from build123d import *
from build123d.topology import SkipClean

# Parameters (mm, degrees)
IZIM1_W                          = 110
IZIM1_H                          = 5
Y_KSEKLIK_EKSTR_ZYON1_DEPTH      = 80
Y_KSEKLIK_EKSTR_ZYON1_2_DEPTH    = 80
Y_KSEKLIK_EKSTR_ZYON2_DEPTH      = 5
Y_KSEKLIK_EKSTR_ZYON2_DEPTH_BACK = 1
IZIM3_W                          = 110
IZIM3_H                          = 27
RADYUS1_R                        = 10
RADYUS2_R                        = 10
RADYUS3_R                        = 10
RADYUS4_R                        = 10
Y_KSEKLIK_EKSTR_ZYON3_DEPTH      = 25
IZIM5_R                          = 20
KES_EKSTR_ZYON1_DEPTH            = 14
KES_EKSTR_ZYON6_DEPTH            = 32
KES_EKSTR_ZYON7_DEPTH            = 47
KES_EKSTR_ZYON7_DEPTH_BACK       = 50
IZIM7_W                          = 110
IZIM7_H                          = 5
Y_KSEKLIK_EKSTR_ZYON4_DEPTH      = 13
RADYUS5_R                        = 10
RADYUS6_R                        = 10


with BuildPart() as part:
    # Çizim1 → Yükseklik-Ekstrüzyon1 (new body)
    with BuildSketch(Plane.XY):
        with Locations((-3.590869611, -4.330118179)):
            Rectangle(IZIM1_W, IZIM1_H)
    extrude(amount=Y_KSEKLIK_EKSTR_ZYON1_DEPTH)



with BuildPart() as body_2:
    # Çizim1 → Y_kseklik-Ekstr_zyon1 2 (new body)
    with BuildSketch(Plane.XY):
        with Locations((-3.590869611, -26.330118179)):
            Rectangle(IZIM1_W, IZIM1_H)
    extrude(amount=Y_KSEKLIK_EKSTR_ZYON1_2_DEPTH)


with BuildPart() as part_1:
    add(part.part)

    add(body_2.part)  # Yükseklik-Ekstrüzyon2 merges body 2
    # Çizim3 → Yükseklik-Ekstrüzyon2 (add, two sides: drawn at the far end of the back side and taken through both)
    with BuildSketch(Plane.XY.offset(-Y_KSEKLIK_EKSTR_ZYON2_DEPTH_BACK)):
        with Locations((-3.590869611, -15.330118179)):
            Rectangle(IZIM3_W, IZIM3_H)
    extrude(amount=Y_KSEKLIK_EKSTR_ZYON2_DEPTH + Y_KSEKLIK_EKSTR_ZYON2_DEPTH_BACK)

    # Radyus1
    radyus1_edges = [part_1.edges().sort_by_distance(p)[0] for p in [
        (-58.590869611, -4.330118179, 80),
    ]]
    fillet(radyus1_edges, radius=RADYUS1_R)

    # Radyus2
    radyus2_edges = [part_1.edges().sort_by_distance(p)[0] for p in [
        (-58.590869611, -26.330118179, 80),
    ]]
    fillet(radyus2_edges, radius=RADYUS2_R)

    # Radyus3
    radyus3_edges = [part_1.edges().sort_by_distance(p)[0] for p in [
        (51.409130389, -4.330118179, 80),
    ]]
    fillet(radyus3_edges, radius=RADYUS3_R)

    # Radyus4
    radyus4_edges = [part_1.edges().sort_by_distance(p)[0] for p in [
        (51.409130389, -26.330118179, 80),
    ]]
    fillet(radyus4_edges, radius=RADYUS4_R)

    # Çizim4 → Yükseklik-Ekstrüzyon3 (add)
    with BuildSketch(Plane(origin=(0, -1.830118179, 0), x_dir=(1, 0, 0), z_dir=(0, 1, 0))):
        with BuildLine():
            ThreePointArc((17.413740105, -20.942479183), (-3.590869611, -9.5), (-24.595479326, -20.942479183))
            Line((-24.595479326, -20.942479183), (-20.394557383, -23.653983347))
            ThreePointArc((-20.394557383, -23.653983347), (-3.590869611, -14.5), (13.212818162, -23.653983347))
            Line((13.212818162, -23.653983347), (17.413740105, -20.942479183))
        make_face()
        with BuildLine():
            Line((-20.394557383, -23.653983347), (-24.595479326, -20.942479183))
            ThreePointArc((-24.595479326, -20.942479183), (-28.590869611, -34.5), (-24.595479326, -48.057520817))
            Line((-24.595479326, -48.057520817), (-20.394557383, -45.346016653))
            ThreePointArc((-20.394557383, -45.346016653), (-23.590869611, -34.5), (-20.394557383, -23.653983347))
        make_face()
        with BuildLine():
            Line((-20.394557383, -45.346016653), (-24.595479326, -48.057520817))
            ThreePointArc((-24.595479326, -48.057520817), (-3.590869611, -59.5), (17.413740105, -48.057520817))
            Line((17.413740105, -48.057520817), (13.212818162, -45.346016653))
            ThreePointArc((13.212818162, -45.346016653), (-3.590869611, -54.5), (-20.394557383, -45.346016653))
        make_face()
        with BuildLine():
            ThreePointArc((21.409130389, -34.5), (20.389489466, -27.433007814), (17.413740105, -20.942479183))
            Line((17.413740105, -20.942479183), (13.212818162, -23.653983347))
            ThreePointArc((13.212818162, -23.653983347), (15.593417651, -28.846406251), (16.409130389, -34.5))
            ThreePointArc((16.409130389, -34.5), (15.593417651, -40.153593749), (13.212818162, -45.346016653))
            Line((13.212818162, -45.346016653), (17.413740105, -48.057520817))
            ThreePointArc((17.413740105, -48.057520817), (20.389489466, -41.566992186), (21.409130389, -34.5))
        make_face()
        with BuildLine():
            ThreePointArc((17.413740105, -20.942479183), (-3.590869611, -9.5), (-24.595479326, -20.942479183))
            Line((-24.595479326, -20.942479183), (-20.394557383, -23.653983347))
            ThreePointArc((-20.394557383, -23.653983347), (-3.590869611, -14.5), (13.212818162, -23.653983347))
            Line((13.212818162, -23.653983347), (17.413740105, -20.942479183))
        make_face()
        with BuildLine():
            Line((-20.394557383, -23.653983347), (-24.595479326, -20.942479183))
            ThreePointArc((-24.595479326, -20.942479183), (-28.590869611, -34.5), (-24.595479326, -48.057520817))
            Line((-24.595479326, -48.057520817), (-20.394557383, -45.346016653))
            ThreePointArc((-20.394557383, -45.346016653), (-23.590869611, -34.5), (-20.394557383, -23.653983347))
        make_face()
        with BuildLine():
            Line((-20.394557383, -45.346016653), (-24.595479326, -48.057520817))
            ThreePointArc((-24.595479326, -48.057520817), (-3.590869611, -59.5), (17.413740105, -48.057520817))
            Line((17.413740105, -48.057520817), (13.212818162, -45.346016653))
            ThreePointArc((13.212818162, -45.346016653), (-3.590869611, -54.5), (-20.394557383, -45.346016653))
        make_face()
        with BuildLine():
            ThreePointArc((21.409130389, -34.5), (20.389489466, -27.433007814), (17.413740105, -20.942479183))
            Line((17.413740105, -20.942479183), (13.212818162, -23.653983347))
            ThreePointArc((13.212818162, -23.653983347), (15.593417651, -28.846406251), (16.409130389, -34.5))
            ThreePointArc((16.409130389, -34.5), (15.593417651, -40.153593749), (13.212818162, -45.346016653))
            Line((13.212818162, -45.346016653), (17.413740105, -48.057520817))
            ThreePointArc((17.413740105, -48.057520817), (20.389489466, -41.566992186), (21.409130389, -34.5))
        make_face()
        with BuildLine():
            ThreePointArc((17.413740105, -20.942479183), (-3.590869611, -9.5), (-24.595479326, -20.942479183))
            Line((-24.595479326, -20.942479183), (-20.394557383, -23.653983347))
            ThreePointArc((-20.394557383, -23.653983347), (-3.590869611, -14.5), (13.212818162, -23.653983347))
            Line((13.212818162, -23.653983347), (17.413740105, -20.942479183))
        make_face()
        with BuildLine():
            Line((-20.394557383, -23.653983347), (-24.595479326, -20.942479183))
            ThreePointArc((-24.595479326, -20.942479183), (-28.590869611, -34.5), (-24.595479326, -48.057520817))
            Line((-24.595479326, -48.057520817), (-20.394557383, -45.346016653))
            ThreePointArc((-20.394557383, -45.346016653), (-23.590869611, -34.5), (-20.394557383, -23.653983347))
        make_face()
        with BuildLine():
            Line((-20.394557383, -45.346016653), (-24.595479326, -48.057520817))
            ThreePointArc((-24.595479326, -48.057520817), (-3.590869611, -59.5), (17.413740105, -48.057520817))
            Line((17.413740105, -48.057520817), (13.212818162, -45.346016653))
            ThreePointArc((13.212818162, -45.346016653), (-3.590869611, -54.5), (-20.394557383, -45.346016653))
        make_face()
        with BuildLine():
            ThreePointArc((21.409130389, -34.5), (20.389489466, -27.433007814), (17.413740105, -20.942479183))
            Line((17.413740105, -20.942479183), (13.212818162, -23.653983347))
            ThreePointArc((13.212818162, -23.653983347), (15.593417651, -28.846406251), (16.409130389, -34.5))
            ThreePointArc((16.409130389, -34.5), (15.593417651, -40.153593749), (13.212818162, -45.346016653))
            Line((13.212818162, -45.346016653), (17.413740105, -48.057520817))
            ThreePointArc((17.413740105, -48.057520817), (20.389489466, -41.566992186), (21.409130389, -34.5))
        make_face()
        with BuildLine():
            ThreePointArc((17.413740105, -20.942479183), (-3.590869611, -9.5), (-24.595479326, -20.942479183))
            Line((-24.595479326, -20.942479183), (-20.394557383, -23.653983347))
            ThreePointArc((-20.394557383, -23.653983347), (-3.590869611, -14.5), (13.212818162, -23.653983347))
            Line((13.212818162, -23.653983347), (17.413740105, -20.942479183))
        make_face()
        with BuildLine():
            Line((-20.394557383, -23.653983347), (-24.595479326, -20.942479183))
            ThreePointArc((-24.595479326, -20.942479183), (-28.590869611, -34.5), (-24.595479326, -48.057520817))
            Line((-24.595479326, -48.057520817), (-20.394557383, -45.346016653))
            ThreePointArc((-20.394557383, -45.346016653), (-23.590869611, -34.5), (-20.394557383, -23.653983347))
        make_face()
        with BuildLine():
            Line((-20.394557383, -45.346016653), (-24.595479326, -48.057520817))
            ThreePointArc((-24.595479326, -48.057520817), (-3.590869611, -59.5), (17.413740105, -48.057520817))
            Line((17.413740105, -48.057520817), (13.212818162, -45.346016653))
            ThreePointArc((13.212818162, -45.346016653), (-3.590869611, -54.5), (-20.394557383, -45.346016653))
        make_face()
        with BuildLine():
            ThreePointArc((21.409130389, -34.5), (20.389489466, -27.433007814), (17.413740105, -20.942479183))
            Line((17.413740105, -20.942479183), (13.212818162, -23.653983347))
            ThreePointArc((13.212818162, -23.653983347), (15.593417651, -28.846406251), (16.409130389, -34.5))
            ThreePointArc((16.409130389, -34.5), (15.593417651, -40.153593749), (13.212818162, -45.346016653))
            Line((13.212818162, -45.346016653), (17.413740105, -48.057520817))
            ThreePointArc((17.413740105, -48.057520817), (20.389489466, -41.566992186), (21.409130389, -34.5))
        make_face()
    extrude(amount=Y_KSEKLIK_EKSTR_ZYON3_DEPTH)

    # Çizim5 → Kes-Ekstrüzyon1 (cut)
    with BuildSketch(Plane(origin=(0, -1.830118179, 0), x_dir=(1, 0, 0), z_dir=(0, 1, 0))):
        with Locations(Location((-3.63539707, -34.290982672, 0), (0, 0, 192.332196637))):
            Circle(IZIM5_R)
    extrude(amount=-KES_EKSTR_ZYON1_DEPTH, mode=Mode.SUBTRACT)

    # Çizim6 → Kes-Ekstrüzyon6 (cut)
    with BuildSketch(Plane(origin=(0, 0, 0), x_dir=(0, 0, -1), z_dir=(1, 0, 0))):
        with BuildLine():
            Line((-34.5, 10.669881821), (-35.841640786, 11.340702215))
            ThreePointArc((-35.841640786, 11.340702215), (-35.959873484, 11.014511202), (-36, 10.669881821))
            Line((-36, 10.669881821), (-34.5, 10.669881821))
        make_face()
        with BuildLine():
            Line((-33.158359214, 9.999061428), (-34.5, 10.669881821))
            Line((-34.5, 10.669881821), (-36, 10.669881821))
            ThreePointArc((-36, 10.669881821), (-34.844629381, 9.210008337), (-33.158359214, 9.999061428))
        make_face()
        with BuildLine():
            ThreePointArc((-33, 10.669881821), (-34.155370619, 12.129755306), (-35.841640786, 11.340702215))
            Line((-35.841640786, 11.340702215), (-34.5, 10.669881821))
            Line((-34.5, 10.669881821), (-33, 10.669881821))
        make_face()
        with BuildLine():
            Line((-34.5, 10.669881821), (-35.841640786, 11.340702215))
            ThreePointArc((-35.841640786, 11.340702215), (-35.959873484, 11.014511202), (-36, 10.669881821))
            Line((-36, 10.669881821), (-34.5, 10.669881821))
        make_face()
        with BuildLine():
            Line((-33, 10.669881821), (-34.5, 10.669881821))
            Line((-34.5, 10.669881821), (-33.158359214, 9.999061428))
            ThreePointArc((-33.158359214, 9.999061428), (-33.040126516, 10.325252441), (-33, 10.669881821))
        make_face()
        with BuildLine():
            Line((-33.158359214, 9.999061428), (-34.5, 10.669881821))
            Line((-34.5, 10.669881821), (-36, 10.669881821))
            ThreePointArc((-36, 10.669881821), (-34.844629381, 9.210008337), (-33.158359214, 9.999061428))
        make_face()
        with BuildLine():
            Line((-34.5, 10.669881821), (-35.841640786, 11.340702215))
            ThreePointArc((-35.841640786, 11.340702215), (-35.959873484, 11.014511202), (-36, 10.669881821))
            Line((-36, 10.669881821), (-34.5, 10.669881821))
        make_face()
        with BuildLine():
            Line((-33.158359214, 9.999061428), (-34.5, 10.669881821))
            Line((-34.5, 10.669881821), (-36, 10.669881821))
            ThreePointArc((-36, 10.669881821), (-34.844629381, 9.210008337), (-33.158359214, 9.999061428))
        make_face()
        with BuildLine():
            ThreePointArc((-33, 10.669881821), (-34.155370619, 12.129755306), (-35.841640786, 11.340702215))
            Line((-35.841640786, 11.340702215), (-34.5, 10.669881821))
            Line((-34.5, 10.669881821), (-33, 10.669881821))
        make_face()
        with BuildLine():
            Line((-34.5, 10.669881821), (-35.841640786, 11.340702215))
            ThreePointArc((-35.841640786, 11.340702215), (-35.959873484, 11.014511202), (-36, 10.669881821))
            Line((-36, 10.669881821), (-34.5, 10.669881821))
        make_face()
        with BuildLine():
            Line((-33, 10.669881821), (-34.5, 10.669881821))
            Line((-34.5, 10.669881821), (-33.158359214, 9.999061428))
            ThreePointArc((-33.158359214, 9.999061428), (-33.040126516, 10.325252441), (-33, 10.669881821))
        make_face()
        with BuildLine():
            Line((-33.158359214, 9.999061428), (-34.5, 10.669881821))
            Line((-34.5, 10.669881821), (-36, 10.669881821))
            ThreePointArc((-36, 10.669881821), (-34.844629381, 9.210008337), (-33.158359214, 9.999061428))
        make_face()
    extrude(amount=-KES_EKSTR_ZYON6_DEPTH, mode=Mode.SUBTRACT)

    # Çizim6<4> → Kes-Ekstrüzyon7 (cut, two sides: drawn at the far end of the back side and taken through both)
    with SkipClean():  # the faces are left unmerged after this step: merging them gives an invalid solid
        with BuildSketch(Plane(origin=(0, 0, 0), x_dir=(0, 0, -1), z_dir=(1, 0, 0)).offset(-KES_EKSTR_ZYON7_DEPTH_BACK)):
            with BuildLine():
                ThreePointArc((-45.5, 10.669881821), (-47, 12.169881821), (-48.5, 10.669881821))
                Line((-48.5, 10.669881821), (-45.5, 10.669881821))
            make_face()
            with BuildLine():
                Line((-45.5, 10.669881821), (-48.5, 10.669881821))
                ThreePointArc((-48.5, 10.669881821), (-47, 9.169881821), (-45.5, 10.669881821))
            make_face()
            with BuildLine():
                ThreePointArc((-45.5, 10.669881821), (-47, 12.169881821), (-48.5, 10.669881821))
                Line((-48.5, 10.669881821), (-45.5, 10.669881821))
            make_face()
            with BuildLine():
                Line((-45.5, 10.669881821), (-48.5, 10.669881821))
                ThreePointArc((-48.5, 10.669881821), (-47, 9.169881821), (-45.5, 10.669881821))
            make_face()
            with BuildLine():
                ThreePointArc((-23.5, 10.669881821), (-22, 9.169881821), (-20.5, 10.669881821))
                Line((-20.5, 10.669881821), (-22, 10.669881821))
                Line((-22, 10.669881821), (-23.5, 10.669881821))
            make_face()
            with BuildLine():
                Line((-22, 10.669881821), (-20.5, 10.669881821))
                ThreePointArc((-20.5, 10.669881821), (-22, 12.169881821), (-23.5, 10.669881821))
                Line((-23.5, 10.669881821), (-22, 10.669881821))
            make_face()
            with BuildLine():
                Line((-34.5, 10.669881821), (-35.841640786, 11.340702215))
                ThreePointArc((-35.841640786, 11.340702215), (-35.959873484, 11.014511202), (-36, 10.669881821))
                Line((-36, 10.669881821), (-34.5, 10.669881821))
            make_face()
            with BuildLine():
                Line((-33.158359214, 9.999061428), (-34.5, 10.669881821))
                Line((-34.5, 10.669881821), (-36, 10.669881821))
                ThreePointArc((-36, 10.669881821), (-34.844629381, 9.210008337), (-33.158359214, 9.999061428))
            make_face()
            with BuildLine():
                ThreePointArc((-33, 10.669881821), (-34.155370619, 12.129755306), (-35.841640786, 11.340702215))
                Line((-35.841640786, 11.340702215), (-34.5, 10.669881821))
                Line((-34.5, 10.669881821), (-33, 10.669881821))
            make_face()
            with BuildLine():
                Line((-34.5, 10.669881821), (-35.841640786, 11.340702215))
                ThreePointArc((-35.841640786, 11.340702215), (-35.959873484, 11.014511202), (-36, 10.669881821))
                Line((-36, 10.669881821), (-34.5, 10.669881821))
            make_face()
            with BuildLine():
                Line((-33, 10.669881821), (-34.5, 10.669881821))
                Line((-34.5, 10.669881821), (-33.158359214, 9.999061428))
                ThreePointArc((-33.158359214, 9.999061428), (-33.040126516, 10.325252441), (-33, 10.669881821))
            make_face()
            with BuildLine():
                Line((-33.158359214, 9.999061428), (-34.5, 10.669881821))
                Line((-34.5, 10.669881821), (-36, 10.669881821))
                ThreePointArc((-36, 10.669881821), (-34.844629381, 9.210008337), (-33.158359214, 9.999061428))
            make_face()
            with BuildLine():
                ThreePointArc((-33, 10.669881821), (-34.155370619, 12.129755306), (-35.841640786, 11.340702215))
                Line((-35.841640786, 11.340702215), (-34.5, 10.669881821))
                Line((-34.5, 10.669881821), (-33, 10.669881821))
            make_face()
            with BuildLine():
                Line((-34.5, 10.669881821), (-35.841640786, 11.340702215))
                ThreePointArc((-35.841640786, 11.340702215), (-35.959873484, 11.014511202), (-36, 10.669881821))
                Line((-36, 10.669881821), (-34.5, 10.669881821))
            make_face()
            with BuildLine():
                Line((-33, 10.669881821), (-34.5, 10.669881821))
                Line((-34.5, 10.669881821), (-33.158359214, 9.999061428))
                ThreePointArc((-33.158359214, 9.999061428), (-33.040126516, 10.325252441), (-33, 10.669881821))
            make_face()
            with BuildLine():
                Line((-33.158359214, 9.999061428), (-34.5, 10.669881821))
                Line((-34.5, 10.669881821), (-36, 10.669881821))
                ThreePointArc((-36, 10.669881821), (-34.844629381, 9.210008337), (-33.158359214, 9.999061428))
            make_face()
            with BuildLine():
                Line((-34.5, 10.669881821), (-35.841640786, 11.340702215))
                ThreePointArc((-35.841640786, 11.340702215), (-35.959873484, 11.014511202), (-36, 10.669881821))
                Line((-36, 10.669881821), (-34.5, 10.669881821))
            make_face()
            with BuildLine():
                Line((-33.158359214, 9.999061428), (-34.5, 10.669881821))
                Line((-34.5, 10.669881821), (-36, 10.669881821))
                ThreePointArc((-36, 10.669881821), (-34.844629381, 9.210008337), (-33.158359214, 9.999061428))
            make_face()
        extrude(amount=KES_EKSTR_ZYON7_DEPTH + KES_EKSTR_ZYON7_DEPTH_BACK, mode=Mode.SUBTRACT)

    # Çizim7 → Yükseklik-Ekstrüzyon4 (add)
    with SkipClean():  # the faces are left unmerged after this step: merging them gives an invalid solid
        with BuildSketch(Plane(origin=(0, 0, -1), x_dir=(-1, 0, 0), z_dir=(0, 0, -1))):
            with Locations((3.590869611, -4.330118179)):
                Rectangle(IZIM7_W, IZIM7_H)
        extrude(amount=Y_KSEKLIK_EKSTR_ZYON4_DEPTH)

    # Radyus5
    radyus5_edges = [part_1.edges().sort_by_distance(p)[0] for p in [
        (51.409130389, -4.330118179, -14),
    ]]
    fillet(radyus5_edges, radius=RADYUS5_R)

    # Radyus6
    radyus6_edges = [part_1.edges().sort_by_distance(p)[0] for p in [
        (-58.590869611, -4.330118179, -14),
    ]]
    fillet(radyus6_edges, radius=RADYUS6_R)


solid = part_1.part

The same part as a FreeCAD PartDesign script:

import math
import FreeCAD as App
import Part
import Sketcher
from FreeCAD import Vector


def edges_at(feature, points):
    """Names of the edges that pass closest to the given points."""
    edges = feature.Shape.Edges
    near = lambda p: min(range(len(edges)), key=lambda i: edges[i].distToShape(Part.Vertex(*p))[0])
    return sorted({f"Edge{near(p) + 1}" for p in points})

doc = App.newDocument("Part")
body = doc.addObject("PartDesign::Body", "Body")

sketch1 = doc.addObject("Sketcher::SketchObject", "Sketch")
body.addObject(sketch1)
sketch1.AttachmentSupport = (doc.XY_Plane, [""])
sketch1.MapMode = "FlatFace"
sketch1.addGeometry([
    Part.LineSegment(Vector(-59, -2, 0), Vector(-59, -7, 0)),
    Part.LineSegment(Vector(-59, -7, 0), Vector(51, -7, 0)),
    Part.LineSegment(Vector(51, -7, 0), Vector(51, -2, 0)),
    Part.LineSegment(Vector(51, -2, 0), Vector(-59, -2, 0)),
], False)
sketch1.addConstraint([
    Sketcher.Constraint("Coincident", 0, 2, 1, 1),
    Sketcher.Constraint("Coincident", 1, 2, 2, 1),
    Sketcher.Constraint("Coincident", 2, 2, 3, 1),
    Sketcher.Constraint("Coincident", 3, 2, 0, 1),
    Sketcher.Constraint("Vertical", 0),
    Sketcher.Constraint("Horizontal", 1),
    Sketcher.Constraint("Vertical", 2),
    Sketcher.Constraint("Horizontal", 3),
    Sketcher.Constraint("DistanceX", 1, 1, 1, 2, 110.0),
    Sketcher.Constraint("DistanceY", 0, 2, 0, 1, 5.0),
    Sketcher.Constraint("DistanceX", 0, 2, -1, 1, 58.59087),
    Sketcher.Constraint("DistanceY", 0, 2, -1, 1, 6.830118),
])
pad1 = doc.addObject("PartDesign::Pad", "Pad")
body.addObject(pad1)
pad1.Profile = sketch1
pad1.Length = 80
body2 = doc.addObject("PartDesign::Body", "Body001")

sketch2 = doc.addObject("Sketcher::SketchObject", "Sketch001")
body2.addObject(sketch2)
sketch2.AttachmentSupport = (doc.getObject("XY_Plane001"), [""])
sketch2.MapMode = "FlatFace"
sketch2.addGeometry([
    Part.LineSegment(Vector(-59, -24, 0), Vector(-59, -29, 0)),
    Part.LineSegment(Vector(-59, -29, 0), Vector(51, -29, 0)),
    Part.LineSegment(Vector(51, -29, 0), Vector(51, -24, 0)),
    Part.LineSegment(Vector(51, -24, 0), Vector(-59, -24, 0)),
], False)
sketch2.addConstraint([
    Sketcher.Constraint("Coincident", 0, 2, 1, 1),
    Sketcher.Constraint("Coincident", 1, 2, 2, 1),
    Sketcher.Constraint("Coincident", 2, 2, 3, 1),
    Sketcher.Constraint("Coincident", 3, 2, 0, 1),
    Sketcher.Constraint("Vertical", 0),
    Sketcher.Constraint("Horizontal", 1),
    Sketcher.Constraint("Vertical", 2),
    Sketcher.Constraint("Horizontal", 3),
    Sketcher.Constraint("DistanceX", 1, 1, 1, 2, 110.0),
    Sketcher.Constraint("DistanceY", 0, 2, 0, 1, 5.0),
    Sketcher.Constraint("DistanceX", 0, 2, -1, 1, 58.59087),
    Sketcher.Constraint("DistanceY", 0, 2, -1, 1, 28.830118),
])
pad2 = doc.addObject("PartDesign::Pad", "Pad001")
body2.addObject(pad2)
pad2.Profile = sketch2
pad2.Length = 80
body.AllowCompound = True
doc.recompute()

boolean = doc.addObject("PartDesign::Boolean", "Boolean")
body.addObject(boolean)
boolean.Type = "Fuse"
boolean.addObjects([body2])

sketch3 = doc.addObject("Sketcher::SketchObject", "Sketch002")
body.addObject(sketch3)
sketch3.AttachmentSupport = (doc.XY_Plane, [""])
sketch3.MapMode = "FlatFace"
sketch3.addGeometry([
    Part.LineSegment(Vector(-59, -2, 0), Vector(-59, -29, 0)),
    Part.LineSegment(Vector(-59, -29, 0), Vector(51, -29, 0)),
    Part.LineSegment(Vector(51, -29, 0), Vector(51, -2, 0)),
    Part.LineSegment(Vector(51, -2, 0), Vector(-59, -2, 0)),
], False)
sketch3.addConstraint([
    Sketcher.Constraint("Coincident", 0, 2, 1, 1),
    Sketcher.Constraint("Coincident", 1, 2, 2, 1),
    Sketcher.Constraint("Coincident", 2, 2, 3, 1),
    Sketcher.Constraint("Coincident", 3, 2, 0, 1),
    Sketcher.Constraint("Vertical", 0),
    Sketcher.Constraint("Horizontal", 1),
    Sketcher.Constraint("Vertical", 2),
    Sketcher.Constraint("Horizontal", 3),
    Sketcher.Constraint("DistanceX", 1, 1, 1, 2, 110.0),
    Sketcher.Constraint("DistanceY", 0, 2, 0, 1, 27.0),
    Sketcher.Constraint("DistanceX", 0, 2, -1, 1, 58.59087),
    Sketcher.Constraint("DistanceY", 0, 2, -1, 1, 28.830118),
])
pad3 = doc.addObject("PartDesign::Pad", "Pad002")
body.addObject(pad3)
pad3.Profile = sketch3
pad3.Type = "TwoLengths"
pad3.Length = 5
pad3.Length2 = 1
doc.recompute()

fillet = doc.addObject("PartDesign::Fillet", "Fillet")
body.addObject(fillet)
fillet.Base = (pad3, edges_at(pad3, [(-58.591, -4.33, 80)]))
fillet.Radius = 10
doc.recompute()

fillet2 = doc.addObject("PartDesign::Fillet", "Fillet001")
body.addObject(fillet2)
fillet2.Base = (fillet, edges_at(fillet, [(-58.591, -26.33, 80)]))
fillet2.Radius = 10
doc.recompute()

fillet3 = doc.addObject("PartDesign::Fillet", "Fillet002")
body.addObject(fillet3)
fillet3.Base = (fillet2, edges_at(fillet2, [(51.409, -4.33, 80)]))
fillet3.Radius = 10
doc.recompute()

fillet4 = doc.addObject("PartDesign::Fillet", "Fillet003")
body.addObject(fillet4)
fillet4.Base = (fillet3, edges_at(fillet3, [(51.409, -26.33, 80)]))
fillet4.Radius = 10

sketch4 = doc.addObject("Sketcher::SketchObject", "Sketch003")
body.addObject(sketch4)
sketch4.AttachmentSupport = (doc.XZ_Plane, [""])
sketch4.MapMode = "FlatFace"
sketch4.AttachmentOffset = App.Placement(Vector(0, 0, 1.830118), App.Rotation())
sketch4.addGeometry([
    Part.ArcOfCircle(Part.Circle(Vector(-4, 34, 0), Vector(0, 0, 1), 25), math.radians(33), math.radians(147)),
    Part.ArcOfCircle(Part.Circle(Vector(-4, 35, 0), Vector(0, 0, 1), 25), math.radians(0), math.radians(33)),
    Part.ArcOfCircle(Part.Circle(Vector(-4, 34, 0), Vector(0, 0, 1), 25), math.radians(-33), math.radians(0)),
    Part.ArcOfCircle(Part.Circle(Vector(-4, 34, 0), Vector(0, 0, 1), 25), math.radians(-147), math.radians(-33)),
    Part.ArcOfCircle(Part.Circle(Vector(-4, 34, 0), Vector(0, 0, 1), 25), math.radians(147), math.radians(213)),
    Part.ArcOfCircle(Part.Circle(Vector(-4, 34, 0), Vector(0, 0, 1), 20), math.radians(-147), math.radians(-33)),
    Part.ArcOfCircle(Part.Circle(Vector(-4, 34, 0), Vector(0, 0, 1), 20), math.radians(-33), math.radians(0)),
    Part.ArcOfCircle(Part.Circle(Vector(-4, 35, 0), Vector(0, 0, 1), 20), math.radians(0), math.radians(33)),
    Part.ArcOfCircle(Part.Circle(Vector(-4, 34, 0), Vector(0, 0, 1), 20), math.radians(33), math.radians(147)),
    Part.ArcOfCircle(Part.Circle(Vector(-4, 34, 0), Vector(0, 0, 1), 20), math.radians(147), math.radians(213)),
], False)
sketch4.addConstraint([
    Sketcher.Constraint("Tangent", 0, 1, 1, 2),
    Sketcher.Constraint("Tangent", 1, 1, 2, 2),
    Sketcher.Constraint("Tangent", 2, 1, 3, 2),
    Sketcher.Constraint("Tangent", 3, 1, 4, 2),
    Sketcher.Constraint("Tangent", 4, 1, 0, 2),
    Sketcher.Constraint("Tangent", 5, 2, 6, 1),
    Sketcher.Constraint("Tangent", 6, 2, 7, 1),
    Sketcher.Constraint("Tangent", 7, 2, 8, 1),
    Sketcher.Constraint("Tangent", 8, 2, 9, 1),
    Sketcher.Constraint("Tangent", 9, 2, 5, 1),
    Sketcher.Constraint("Coincident", 2, 3, 0, 3),
    Sketcher.Constraint("Coincident", 5, 3, 0, 3),
    Sketcher.Constraint("Coincident", 7, 3, 0, 3),
    Sketcher.Constraint("Horizontal", 9, 3, 1, 1),
    Sketcher.Constraint("Horizontal", 2, 1, 3, 1),
    Sketcher.Constraint("Horizontal", 0, 1, 4, 1),
    Sketcher.Constraint("Horizontal", 1, 1, 6, 2),
    Sketcher.Constraint("Horizontal", 7, 2, 8, 2),
    Sketcher.Constraint("Horizontal", 5, 2, 9, 2),
    Sketcher.Constraint("Vertical", 0, 1, 2, 1),
    Sketcher.Constraint("Vertical", 5, 2, 7, 2),
    Sketcher.Constraint("Radius", 0, 25.0),
    Sketcher.Constraint("Radius", 5, 20.0),
    Sketcher.Constraint("DistanceY", -1, 1, 0, 3, 34.5),
    Sketcher.Constraint("DistanceX", 0, 3, -1, 1, 3.59087),
    Sketcher.Constraint("DistanceX", -1, 1, 0, 1, 17.41374),
    Sketcher.Constraint("DistanceX", -1, 1, 5, 2, 13.212818),
])
pad4 = doc.addObject("PartDesign::Pad", "Pad003")
body.addObject(pad4)
pad4.Profile = sketch4
pad4.Length = 25
pad4.Reversed = True

sketch5 = doc.addObject("Sketcher::SketchObject", "Sketch004")
body.addObject(sketch5)
sketch5.AttachmentSupport = (doc.XZ_Plane, [""])
sketch5.MapMode = "FlatFace"
sketch5.AttachmentOffset = App.Placement(Vector(0, 0, 1.830118), App.Rotation())
sketch5.addGeometry(Part.Circle(Vector(-4, 34, 0), Vector(0, 0, 1), 20), False)
sketch5.addConstraint([
    Sketcher.Constraint("Diameter", 0, 40.0),
    Sketcher.Constraint("DistanceX", 0, 3, -1, 1, 3.635397),
    Sketcher.Constraint("DistanceY", -1, 1, 0, 3, 34.290983),
])
pocket1 = doc.addObject("PartDesign::Pocket", "Pocket")
body.addObject(pocket1)
pocket1.Profile = sketch5
pocket1.Length = 14
pocket1.Reversed = True

sketch6 = doc.addObject("Sketcher::SketchObject", "Sketch005")
body.addObject(sketch6)
sketch6.AttachmentSupport = (doc.YZ_Plane, [""])
sketch6.MapMode = "FlatFace"
sketch6.addGeometry([
    Part.ArcOfCircle(Part.Circle(Vector(10.7, 34.5, 0), Vector(0, 0, 1), 1.5), math.radians(-90), math.radians(63)),
    Part.ArcOfCircle(Part.Circle(Vector(10.7, 34.5, 0), Vector(0, 0, 1), 1.5), math.radians(63), math.radians(90)),
    Part.ArcOfCircle(Part.Circle(Vector(10.7, 34.5, 0), Vector(0, 0, 1), 1.5), math.radians(90), math.radians(243)),
    Part.ArcOfCircle(Part.Circle(Vector(10.7, 34.5, 0), Vector(0, 0, 1), 1.5), math.radians(-117), math.radians(-90)),
], False)
sketch6.addConstraint([
    Sketcher.Constraint("Tangent", 0, 2, 1, 1),
    Sketcher.Constraint("Tangent", 1, 2, 2, 1),
    Sketcher.Constraint("Tangent", 2, 2, 3, 1),
    Sketcher.Constraint("Tangent", 3, 2, 0, 1),
    Sketcher.Constraint("Equal", 0, 1),
    Sketcher.Constraint("Vertical", 3, 3, 1, 2),
    Sketcher.Constraint("Vertical", 1, 2, 3, 2),
    Sketcher.Constraint("Radius", 0, 1.5),
    Sketcher.Constraint("DistanceY", -1, 1, 1, 2, 36.0),
    Sketcher.Constraint("DistanceX", -1, 1, 0, 3, 10.669882),
    Sketcher.Constraint("DistanceY", -1, 1, 0, 2, 35.841641),
    Sketcher.Constraint("DistanceX", -1, 1, 2, 2, 9.999061),
])
pocket2 = doc.addObject("PartDesign::Pocket", "Pocket001")
body.addObject(pocket2)
pocket2.Profile = sketch6
pocket2.Length = 32

sketch7 = doc.addObject("Sketcher::SketchObject", "Sketch006")
body.addObject(sketch7)
sketch7.AttachmentSupport = (doc.YZ_Plane, [""])
sketch7.MapMode = "FlatFace"
sketch7.addGeometry([
    Part.ArcOfCircle(Part.Circle(Vector(10.7, 47, 0), Vector(0, 0, 1), 1.5), math.radians(-90), math.radians(90)),
    Part.LineSegment(Vector(10.7, 48.5, 0), Vector(10.7, 45.5, 0)),
    Part.LineSegment(Vector(10.7, 45.5, 0), Vector(10.7, 48.5, 0)),
    Part.ArcOfCircle(Part.Circle(Vector(10.7, 47, 0), Vector(0, 0, 1), 1.5), math.radians(90), math.radians(270)),
    Part.ArcOfCircle(Part.Circle(Vector(10.7, 22, 0), Vector(0, 0, 1), 1.5), math.radians(90), math.radians(270)),
    Part.LineSegment(Vector(10.7, 20.5, 0), Vector(10.7, 22, 0)),
    Part.LineSegment(Vector(10.7, 22, 0), Vector(10.7, 23.5, 0)),
    Part.LineSegment(Vector(10.7, 22, 0), Vector(10.7, 20.5, 0)),
    Part.ArcOfCircle(Part.Circle(Vector(10.7, 22, 0), Vector(0, 0, 1), 1.5), math.radians(-90), math.radians(90)),
    Part.LineSegment(Vector(10.7, 23.5, 0), Vector(10.7, 22, 0)),
    Part.LineSegment(Vector(10.7, 34.5, 0), Vector(11.3, 35.8, 0)),
    Part.ArcOfCircle(Part.Circle(Vector(10.7, 34.5, 0), Vector(0, 0, 1), 1.5), math.radians(63), math.radians(90)),
    Part.LineSegment(Vector(10.7, 36, 0), Vector(10.7, 34.5, 0)),
    Part.LineSegment(Vector(10, 33.2, 0), Vector(10.7, 34.5, 0)),
    Part.LineSegment(Vector(10.7, 34.5, 0), Vector(10.7, 36, 0)),
    Part.ArcOfCircle(Part.Circle(Vector(10.7, 34.5, 0), Vector(0, 0, 1), 1.5), math.radians(90), math.radians(243)),
    Part.ArcOfCircle(Part.Circle(Vector(10.7, 34.5, 0), Vector(0, 0, 1), 1.5), math.radians(-90), math.radians(63)),
    Part.LineSegment(Vector(11.3, 35.8, 0), Vector(10.7, 34.5, 0)),
    Part.LineSegment(Vector(10.7, 34.5, 0), Vector(10.7, 33, 0)),
    Part.LineSegment(Vector(10.7, 33, 0), Vector(10.7, 34.5, 0)),
    Part.LineSegment(Vector(10.7, 34.5, 0), Vector(10, 33.2, 0)),
    Part.ArcOfCircle(Part.Circle(Vector(10.7, 34.5, 0), Vector(0, 0, 1), 1.5), math.radians(-117), math.radians(-90)),
], False)
sketch7.addConstraint([
    Sketcher.Constraint("Coincident", 0, 1, 1, 2),
    Sketcher.Constraint("Coincident", 1, 1, 0, 2),
    Sketcher.Constraint("Coincident", 2, 1, 3, 2),
    Sketcher.Constraint("Coincident", 3, 1, 2, 2),
    Sketcher.Constraint("Coincident", 4, 2, 5, 1),
    Sketcher.Constraint("Coincident", 5, 2, 6, 1),
    Sketcher.Constraint("Coincident", 6, 2, 4, 1),
    Sketcher.Constraint("Coincident", 7, 2, 8, 1),
    Sketcher.Constraint("Coincident", 8, 2, 9, 1),
    Sketcher.Constraint("Coincident", 9, 2, 7, 1),
    Sketcher.Constraint("Coincident", 10, 2, 11, 1),
    Sketcher.Constraint("Coincident", 11, 2, 12, 1),
    Sketcher.Constraint("Coincident", 12, 2, 10, 1),
    Sketcher.Constraint("Coincident", 13, 2, 14, 1),
    Sketcher.Constraint("Coincident", 14, 2, 15, 1),
    Sketcher.Constraint("Coincident", 15, 2, 13, 1),
    Sketcher.Constraint("Coincident", 16, 2, 17, 1),
    Sketcher.Constraint("Coincident", 17, 2, 18, 1),
    Sketcher.Constraint("Coincident", 18, 2, 16, 1),
    Sketcher.Constraint("Coincident", 19, 2, 20, 1),
    Sketcher.Constraint("Coincident", 20, 2, 21, 1),
    Sketcher.Constraint("Coincident", 21, 2, 19, 1),
    Sketcher.Constraint("Vertical", 1),
    Sketcher.Constraint("Vertical", 2),
    Sketcher.Constraint("Vertical", 5),
    Sketcher.Constraint("Vertical", 6),
    Sketcher.Constraint("Vertical", 7),
    Sketcher.Constraint("Vertical", 9),
    Sketcher.Constraint("Vertical", 12),
    Sketcher.Constraint("Vertical", 14),
    Sketcher.Constraint("Vertical", 18),
    Sketcher.Constraint("Vertical", 19),
    Sketcher.Constraint("Coincident", 3, 3, 0, 3),
    Sketcher.Constraint("Coincident", 8, 3, 4, 3),
    Sketcher.Constraint("Coincident", 15, 3, 11, 3),
    Sketcher.Constraint("Coincident", 16, 3, 11, 3),
    Sketcher.Constraint("Coincident", 21, 3, 11, 3),
    Sketcher.Constraint("Coincident", 2, 1, 0, 1),
    Sketcher.Constraint("Coincident", 5, 2, 4, 3),
    Sketcher.Constraint("Coincident", 7, 2, 4, 2),
    Sketcher.Constraint("Coincident", 12, 2, 11, 3),
    Sketcher.Constraint("Coincident", 13, 2, 11, 3),
    Sketcher.Constraint("Coincident", 16, 2, 10, 2),
    Sketcher.Constraint("Coincident", 17, 2, 11, 3),
    Sketcher.Constraint("Coincident", 19, 2, 11, 3),
    Sketcher.Constraint("Coincident", 20, 2, 15, 2),
    Sketcher.Constraint("Equal", 3, 4),
    Sketcher.Constraint("Equal", 8, 11),
    Sketcher.Constraint("Equal", 11, 15),
    Sketcher.Constraint("Parallel", 10, 13),
    Sketcher.Constraint("Vertical", 3, 3, 4, 3),
    Sketcher.Constraint("Vertical", 8, 3, 11, 3),
    Sketcher.Constraint("Vertical", 21, 3, 0, 1),
    Sketcher.Constraint("Equal", 6, 7),
    Sketcher.Constraint("Radius", 0, 1.5),
    Sketcher.Constraint("DistanceY", -1, 1, 0, 3, 47.0),
    Sketcher.Constraint("DistanceY", -1, 1, 4, 3, 22.0),
    Sketcher.Constraint("DistanceY", -1, 1, 11, 2, 36.0),
    Sketcher.Constraint("DistanceX", -1, 1, 0, 3, 10.669882),
    Sketcher.Constraint("DistanceY", -1, 1, 10, 2, 35.841641),
])
pocket3 = doc.addObject("PartDesign::Pocket", "Pocket002")
body.addObject(pocket3)
pocket3.Profile = sketch7
pocket3.Type = "ThroughAll"
pocket3.Midplane = True

sketch8 = doc.addObject("Sketcher::SketchObject", "Sketch007")
body.addObject(sketch8)
sketch8.AttachmentSupport = (doc.XY_Plane, [""])
sketch8.MapMode = "FlatFace"
sketch8.AttachmentOffset = App.Placement(Vector(0, 0, -1), App.Rotation())
sketch8.addGeometry([
    Part.LineSegment(Vector(51, -2, 0), Vector(51, -7, 0)),
    Part.LineSegment(Vector(51, -7, 0), Vector(-59, -7, 0)),
    Part.LineSegment(Vector(-59, -7, 0), Vector(-59, -2, 0)),
    Part.LineSegment(Vector(-59, -2, 0), Vector(51, -2, 0)),
], False)
sketch8.addConstraint([
    Sketcher.Constraint("Coincident", 0, 2, 1, 1),
    Sketcher.Constraint("Coincident", 1, 2, 2, 1),
    Sketcher.Constraint("Coincident", 2, 2, 3, 1),
    Sketcher.Constraint("Coincident", 3, 2, 0, 1),
    Sketcher.Constraint("Vertical", 0),
    Sketcher.Constraint("Horizontal", 1),
    Sketcher.Constraint("Vertical", 2),
    Sketcher.Constraint("Horizontal", 3),
    Sketcher.Constraint("DistanceX", 1, 2, 1, 1, 110.0),
    Sketcher.Constraint("DistanceY", 0, 2, 0, 1, 5.0),
    Sketcher.Constraint("DistanceX", -1, 1, 0, 2, 51.40913),
    Sketcher.Constraint("DistanceY", 0, 2, -1, 1, 6.830118),
])
pad5 = doc.addObject("PartDesign::Pad", "Pad004")
body.addObject(pad5)
pad5.Profile = sketch8
pad5.Length = 13
pad5.Reversed = True
doc.recompute()

fillet5 = doc.addObject("PartDesign::Fillet", "Fillet004")
body.addObject(fillet5)
fillet5.Base = (pad5, edges_at(pad5, [(51.409, -4.33, -14)]))
fillet5.Radius = 10
doc.recompute()

fillet6 = doc.addObject("PartDesign::Fillet", "Fillet005")
body.addObject(fillet6)
fillet6.Base = (fillet5, edges_at(fillet5, [(-58.591, -4.33, -14)]))
fillet6.Radius = 10

doc.recompute()
